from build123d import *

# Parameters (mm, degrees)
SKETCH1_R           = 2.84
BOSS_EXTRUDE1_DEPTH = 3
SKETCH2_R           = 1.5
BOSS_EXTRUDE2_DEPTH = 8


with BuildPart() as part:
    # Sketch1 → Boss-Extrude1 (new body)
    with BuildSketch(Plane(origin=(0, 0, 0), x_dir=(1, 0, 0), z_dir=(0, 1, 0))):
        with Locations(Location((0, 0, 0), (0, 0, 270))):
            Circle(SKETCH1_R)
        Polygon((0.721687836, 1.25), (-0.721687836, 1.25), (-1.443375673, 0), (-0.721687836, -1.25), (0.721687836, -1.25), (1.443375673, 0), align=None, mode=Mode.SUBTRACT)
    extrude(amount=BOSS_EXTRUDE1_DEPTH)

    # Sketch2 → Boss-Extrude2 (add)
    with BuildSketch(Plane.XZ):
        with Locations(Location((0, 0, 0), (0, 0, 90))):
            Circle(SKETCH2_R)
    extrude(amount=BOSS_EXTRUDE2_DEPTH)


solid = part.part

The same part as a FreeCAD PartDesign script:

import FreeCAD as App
import Part
import Sketcher
from FreeCAD import Vector
Q = App.Units.Quantity


def add_polygon(sketch, points):
    """Adds a closed chain of lines whose ends are joined by coincident constraints."""
    first, n = sketch.GeometryCount, len(points)
    for a, b in zip(points, points[1:] + points[:1]):
        sketch.addGeometry(Part.LineSegment(App.Vector(*a, 0), App.Vector(*b, 0)), False)
    for i in range(n):
        sketch.addConstraint(Sketcher.Constraint("Coincident", first + i, 2, first + (i + 1) % n, 1))

doc = App.newDocument("Part")
body = doc.addObject("PartDesign::Body", "Body")

sketch1 = doc.addObject("Sketcher::SketchObject", "Sketch")
body.addObject(sketch1)
sketch1.AttachmentSupport = (doc.XZ_Plane, [""])
sketch1.MapMode = "FlatFace"
sketch1.addGeometry(Part.Circle(Vector(0, 0, 0), Vector(0, 0, 1), 2.8), False)
add_polygon(sketch1, [(-0.7, -1.2), (0.7, -1.2), (1.4, 0), (0.7, 1.2), (-0.7, 1.2), (-1.4, 0)])
sketch1.addConstraint(Sketcher.Constraint("Horizontal", 1))
sketch1.addConstraint(Sketcher.Constraint("Horizontal", 4))
sketch1.addConstraint(Sketcher.Constraint("Coincident", 0, 3, -1, 1))
sketch1.addConstraint(Sketcher.Constraint("Symmetric", 1, 2, 4, 2, -1, 1))
sketch1.addConstraint(Sketcher.Constraint("Symmetric", 2, 2, 5, 2, -1, 1))
sketch1.addConstraint(Sketcher.Constraint("PointOnObject", 2, 2, -1))
sketch1.addConstraint(Sketcher.Constraint("Parallel", 3, 6))
sketch1.addConstraint(Sketcher.Constraint("Vertical", 1, 2, 3, 2))
sketch1.addConstraint(Sketcher.Constraint("Diameter", 0, 5.68))
sketch1.addConstraint(Sketcher.Constraint("Angle", 2, Q("60 deg")))
sketch1.addConstraint(Sketcher.Constraint("DistanceY", 1, 2, 3, 2, 2.5))
sketch1.addConstraint(Sketcher.Constraint("DistanceX", 1, 1, 1, 2, 1.443376))
pad1 = doc.addObject("PartDesign::Pad", "Pad")
body.addObject(pad1)
pad1.Profile = sketch1
pad1.Length = 3
pad1.Reversed = True

sketch2 = doc.addObject("Sketcher::SketchObject", "Sketch001")
body.addObject(sketch2)
sketch2.AttachmentSupport = (doc.XZ_Plane, [""])
sketch2.MapMode = "FlatFace"
sketch2.addGeometry(Part.Circle(Vector(0, 0, 0), Vector(0, 0, 1), 1.5), False)
sketch2.addConstraint(Sketcher.Constraint("Coincident", 0, 3, -1, 1))
sketch2.addConstraint(Sketcher.Constraint("Diameter", 0, 3.0))
pad2 = doc.addObject("PartDesign::Pad", "Pad001")
body.addObject(pad2)
pad2.Profile = sketch2
pad2.Length = 8

doc.recompute()
